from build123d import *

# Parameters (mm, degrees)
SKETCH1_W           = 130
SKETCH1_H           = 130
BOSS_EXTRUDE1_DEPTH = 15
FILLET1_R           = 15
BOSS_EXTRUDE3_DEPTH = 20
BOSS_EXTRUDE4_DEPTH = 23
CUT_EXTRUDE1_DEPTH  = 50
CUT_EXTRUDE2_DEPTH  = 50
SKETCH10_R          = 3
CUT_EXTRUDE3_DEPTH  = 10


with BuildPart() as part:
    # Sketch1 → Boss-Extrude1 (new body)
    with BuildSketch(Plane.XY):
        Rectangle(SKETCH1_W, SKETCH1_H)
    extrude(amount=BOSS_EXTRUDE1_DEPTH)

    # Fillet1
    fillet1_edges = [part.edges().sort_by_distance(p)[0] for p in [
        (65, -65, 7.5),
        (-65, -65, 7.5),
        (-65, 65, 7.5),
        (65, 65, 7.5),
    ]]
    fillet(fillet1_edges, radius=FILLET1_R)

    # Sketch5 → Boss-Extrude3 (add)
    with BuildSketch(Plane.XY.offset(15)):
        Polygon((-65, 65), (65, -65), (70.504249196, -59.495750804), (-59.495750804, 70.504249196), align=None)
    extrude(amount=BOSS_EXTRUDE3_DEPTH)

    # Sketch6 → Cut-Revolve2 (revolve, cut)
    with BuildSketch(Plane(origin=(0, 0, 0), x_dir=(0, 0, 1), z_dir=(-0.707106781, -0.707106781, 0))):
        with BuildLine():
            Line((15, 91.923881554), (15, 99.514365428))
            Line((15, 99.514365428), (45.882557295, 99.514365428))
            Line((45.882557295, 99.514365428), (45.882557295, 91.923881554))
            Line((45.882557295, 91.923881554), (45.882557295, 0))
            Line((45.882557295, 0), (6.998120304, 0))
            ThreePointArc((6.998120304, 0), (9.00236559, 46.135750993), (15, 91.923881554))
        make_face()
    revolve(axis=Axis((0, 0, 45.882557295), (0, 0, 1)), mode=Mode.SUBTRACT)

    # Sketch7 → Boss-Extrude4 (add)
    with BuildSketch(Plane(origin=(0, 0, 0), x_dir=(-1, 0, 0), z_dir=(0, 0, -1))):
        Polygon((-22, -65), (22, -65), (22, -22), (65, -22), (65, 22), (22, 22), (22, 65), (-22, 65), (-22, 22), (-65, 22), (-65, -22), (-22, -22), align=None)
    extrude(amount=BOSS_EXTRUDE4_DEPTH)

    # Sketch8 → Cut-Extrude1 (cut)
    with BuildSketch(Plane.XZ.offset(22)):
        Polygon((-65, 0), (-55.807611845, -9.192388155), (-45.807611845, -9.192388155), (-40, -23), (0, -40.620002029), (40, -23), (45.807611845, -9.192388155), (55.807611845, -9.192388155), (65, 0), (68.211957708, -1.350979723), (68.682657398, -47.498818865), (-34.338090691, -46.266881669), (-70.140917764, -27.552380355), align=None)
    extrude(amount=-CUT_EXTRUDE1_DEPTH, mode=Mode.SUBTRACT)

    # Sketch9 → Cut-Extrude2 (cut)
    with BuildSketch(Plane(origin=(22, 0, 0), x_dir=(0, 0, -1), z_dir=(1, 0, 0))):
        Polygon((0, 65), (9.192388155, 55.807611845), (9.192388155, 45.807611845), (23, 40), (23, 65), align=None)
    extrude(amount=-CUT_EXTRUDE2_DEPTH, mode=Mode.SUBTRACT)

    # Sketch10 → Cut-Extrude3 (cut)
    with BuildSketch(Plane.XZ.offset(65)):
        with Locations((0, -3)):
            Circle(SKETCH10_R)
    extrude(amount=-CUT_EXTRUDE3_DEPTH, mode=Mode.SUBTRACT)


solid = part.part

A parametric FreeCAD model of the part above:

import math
import FreeCAD as App
import Part
import Sketcher
Q = App.Units.Quantity


def edges_at(feature, points):
    """Names of the edges that pass closest to the given points."""
    edges = feature.Shape.Edges
    near = lambda p: min(range(len(edges)), key=lambda i: edges[i].distToShape(Part.Vertex(*p))[0])
    return sorted({f"Edge{near(p) + 1}" for p in points})

doc = App.newDocument("Part")
params = doc.addObject("Spreadsheet::Sheet", "Params")
for row, (alias, value) in enumerate([
    ("sketch1_width", "130 mm"),
    ("pad1_length", "15 mm"),
    ("fillet_radius", "15 mm"),
    ("pad2_length", "20 mm"),
    ("groove_angle", "360 deg"),
    ("sketch4_width", "44 mm"),
    ("sketch4_width2", "43 mm"),
    ("pad3_length", "23 mm"),
    ("sketch5_width", "10 mm"),
    ("sketch5_length", "13 mm"),
    ("pocket1_length", "50 mm"),
    ("sketch6_width", "10 mm"),
    ("sketch6_width2", "25 mm"),
    ("sketch6_height", "23 mm"),
    ("sketch6_length", "13 mm"),
    ("pocket2_length", "50 mm"),
    ("sketch7_diameter", "6 mm"),
    ("pocket3_length", "10 mm"),
], start=1):
    params.set(f"A{row}", alias)
    params.set(f"B{row}", "=" + value)
    params.setAlias(f"B{row}", alias)

body = doc.addObject("PartDesign::Body", "Body")

# Sketch on XY plane
sketch1 = doc.addObject("Sketcher::SketchObject", "Sketch")
body.addObject(sketch1)
sketch1.AttachmentSupport = (doc.XY_Plane, [""])
sketch1.MapMode = "FlatFace"
sketch1.addGeometry([
    Part.LineSegment(App.Vector(-65, 65, 0), App.Vector(-65, -65, 0)),
    Part.LineSegment(App.Vector(-65, -65, 0), App.Vector(65, -65, 0)),
    Part.LineSegment(App.Vector(65, -65, 0), App.Vector(65, 65, 0)),
    Part.LineSegment(App.Vector(65, 65, 0), App.Vector(-65, 65, 0)),
], False)
sketch1.addConstraint([
    Sketcher.Constraint("Coincident", 0, 2, 1, 1),
    Sketcher.Constraint("Coincident", 1, 2, 2, 1),
    Sketcher.Constraint("Coincident", 2, 2, 3, 1),
    Sketcher.Constraint("Coincident", 3, 2, 0, 1),
    Sketcher.Constraint("Vertical", 0),
    Sketcher.Constraint("Horizontal", 1),
    Sketcher.Constraint("Vertical", 2),
    Sketcher.Constraint("Horizontal", 3),
    Sketcher.Constraint("Symmetric", 0, 2, 2, 2, -1, 1),
    Sketcher.Constraint("Equal", 3, 0),
    Sketcher.Constraint("DistanceX", 1, 1, 1, 2, Q("130 mm")),
])
sketch1.setExpression("Constraints[10]", "Params.sketch1_width")
pad1 = doc.addObject("PartDesign::Pad", "Pad")
body.addObject(pad1)
pad1.Profile = sketch1
pad1.setExpression("Length", "Params.pad1_length")
doc.recompute()

fillet = doc.addObject("PartDesign::Fillet", "Fillet")
body.addObject(fillet)
fillet.Base = (pad1, edges_at(pad1, [
    (65, -65, 7.5),
    (-65, -65, 7.5),
    (-65, 65, 7.5),
    (65, 65, 7.5),
]))
fillet.setExpression("Radius", "Params.fillet_radius")

# Sketch on XY plane
sketch2 = doc.addObject("Sketcher::SketchObject", "Sketch001")
body.addObject(sketch2)
sketch2.AttachmentSupport = (doc.XY_Plane, [""])
sketch2.MapMode = "FlatFace"
sketch2.AttachmentOffset = App.Placement(App.Vector(0, 0, 15), App.Rotation())
sketch2.addGeometry([
    Part.LineSegment(App.Vector(-65, 65, 0), App.Vector(65, -65, 0)),
    Part.LineSegment(App.Vector(65, -65, 0), App.Vector(71, -59, 0)),
    Part.LineSegment(App.Vector(71, -59, 0), App.Vector(-59, 71, 0)),
    Part.LineSegment(App.Vector(-59, 71, 0), App.Vector(-65, 65, 0)),
], False)
sketch2.addConstraint([
    Sketcher.Constraint("Coincident", 0, 2, 1, 1),
    Sketcher.Constraint("Coincident", 1, 2, 2, 1),
    Sketcher.Constraint("Coincident", 2, 2, 3, 1),
    Sketcher.Constraint("Coincident", 3, 2, 0, 1),
    Sketcher.Constraint("Symmetric", 0, 2, 3, 2, -1, 1),
    Sketcher.Constraint("Perpendicular", 0, 1),
    Sketcher.Constraint("Perpendicular", 1, 2),
    Sketcher.Constraint("Perpendicular", 2, 3),
    Sketcher.Constraint("Angle", 0, Q("-45 deg")),
    Sketcher.Constraint("DistanceX", -1, 1, 0, 2, Q("65 mm")),
    Sketcher.Constraint("DistanceX", -1, 1, 1, 2, Q("70.504249 mm")),
])
pad2 = doc.addObject("PartDesign::Pad", "Pad001")
body.addObject(pad2)
pad2.Profile = sketch2
pad2.setExpression("Length", "Params.pad2_length")

# Sketch on an angled plane
sketch3 = doc.addObject("Sketcher::SketchObject", "Sketch002")
body.addObject(sketch3)
sketch3.Placement = App.Placement(App.Vector(0, 0, 0), App.Rotation(App.Vector(0, 0, 1), App.Vector(-0.707106781, 0.707106781, 0), App.Vector(-0.707106781, -0.707106781, 0), "ZXY"))
sketch3.addGeometry([
    Part.LineSegment(App.Vector(15, 100, 0), App.Vector(15, 92, 0)),  # 0
    Part.ArcOfCircle(Part.Circle(App.Vector(539, 0, 0), App.Vector(0, 0, 1), 532), math.radians(170.05), math.radians(180)),  # 1
    Part.LineSegment(App.Vector(7, 0, 0), App.Vector(46, 0, 0)),  # 2
    Part.LineSegment(App.Vector(46, 0, 0), App.Vector(46, 100, 0)),  # 3
    Part.LineSegment(App.Vector(46, 100, 0), App.Vector(15, 100, 0)),  # 4
], False)
sketch3.addConstraint([
    Sketcher.Constraint("Coincident", 0, 2, 1, 1),
    Sketcher.Constraint("Coincident", 1, 2, 2, 1),
    Sketcher.Constraint("Coincident", 2, 2, 3, 1),
    Sketcher.Constraint("Coincident", 3, 2, 4, 1),
    Sketcher.Constraint("Coincident", 4, 2, 0, 1),
    Sketcher.Constraint("Vertical", 0),
    Sketcher.Constraint("Horizontal", 2),
    Sketcher.Constraint("Vertical", 3),
    Sketcher.Constraint("Horizontal", 4),
    Sketcher.Constraint("PointOnObject", 1, 3, -1),
    Sketcher.Constraint("PointOnObject", 2, 2, -1),
    Sketcher.Constraint("DistanceX", -1, 1, 1, 3, Q("539 mm")),
    Sketcher.Constraint("DistanceX", -1, 1, 0, 2, Q("15 mm")),
    Sketcher.Constraint("Radius", 1, Q("532.00188 mm")),
    Sketcher.Constraint("DistanceX", 2, 1, 2, 2, Q("38.884437 mm")),
    Sketcher.Constraint("DistanceY", 0, 2, 0, 1, Q("7.590484 mm")),
])
groove = doc.addObject("PartDesign::Groove", "Groove")
body.addObject(groove)
groove.Profile = sketch3
groove.ReferenceAxis = (sketch3, ["H_Axis"])
groove.setExpression("Angle", "Params.groove_angle")

# Sketch on XY plane
sketch4 = doc.addObject("Sketcher::SketchObject", "Sketch003")
body.addObject(sketch4)
sketch4.AttachmentSupport = (doc.XY_Plane, [""])
sketch4.MapMode = "FlatFace"
sketch4.addGeometry([
    Part.LineSegment(App.Vector(22, -65, 0), App.Vector(-22, -65, 0)),  # 0
    Part.LineSegment(App.Vector(-22, -65, 0), App.Vector(-22, -22, 0)),  # 1
    Part.LineSegment(App.Vector(-22, -22, 0), App.Vector(-65, -22, 0)),  # 2
    Part.LineSegment(App.Vector(-65, -22, 0), App.Vector(-65, 22, 0)),  # 3
    Part.LineSegment(App.Vector(-65, 22, 0), App.Vector(-22, 22, 0)),  # 4
    Part.LineSegment(App.Vector(-22, 22, 0), App.Vector(-22, 65, 0)),  # 5
    Part.LineSegment(App.Vector(-22, 65, 0), App.Vector(22, 65, 0)),  # 6
    Part.LineSegment(App.Vector(22, 65, 0), App.Vector(22, 22, 0)),  # 7
    Part.LineSegment(App.Vector(22, 22, 0), App.Vector(65, 22, 0)),  # 8
    Part.LineSegment(App.Vector(65, 22, 0), App.Vector(65, -22, 0)),  # 9
    Part.LineSegment(App.Vector(65, -22, 0), App.Vector(22, -22, 0)),  # 10
    Part.LineSegment(App.Vector(22, -22, 0), App.Vector(22, -65, 0)),  # 11
], False)
sketch4.addConstraint([
    Sketcher.Constraint("Coincident", 0, 2, 1, 1),
    Sketcher.Constraint("Coincident", 1, 2, 2, 1),
    Sketcher.Constraint("Coincident", 2, 2, 3, 1),
    Sketcher.Constraint("Coincident", 3, 2, 4, 1),
    Sketcher.Constraint("Coincident", 4, 2, 5, 1),
    Sketcher.Constraint("Coincident", 5, 2, 6, 1),
    Sketcher.Constraint("Coincident", 6, 2, 7, 1),
    Sketcher.Constraint("Coincident", 7, 2, 8, 1),
    Sketcher.Constraint("Coincident", 8, 2, 9, 1),
    Sketcher.Constraint("Coincident", 9, 2, 10, 1),
    Sketcher.Constraint("Coincident", 10, 2, 11, 1),
    Sketcher.Constraint("Coincident", 11, 2, 0, 1),
    Sketcher.Constraint("Horizontal", 0),
    Sketcher.Constraint("Vertical", 1),
    Sketcher.Constraint("Horizontal", 2),
    Sketcher.Constraint("Vertical", 3),
    Sketcher.Constraint("Horizontal", 4),
    Sketcher.Constraint("Vertical", 5),
    Sketcher.Constraint("Horizontal", 6),
    Sketcher.Constraint("Vertical", 7),
    Sketcher.Constraint("Horizontal", 8),
    Sketcher.Constraint("Vertical", 9),
    Sketcher.Constraint("Horizontal", 10),
    Sketcher.Constraint("Vertical", 11),
    Sketcher.Constraint("Symmetric", 0, 2, 6, 2, -1, 1),
    Sketcher.Constraint("Symmetric", 2, 2, 8, 2, -1, 1),
    Sketcher.Constraint("Symmetric", 4, 2, 10, 2, -1, 1),
    Sketcher.Constraint("Symmetric", 4, 2, 7, 2, -2),
    Sketcher.Constraint("Equal", 10, 1),
    Sketcher.Constraint("Equal", 6, 3),
    Sketcher.Constraint("DistanceX", 0, 2, 0, 1, Q("44 mm")),
    Sketcher.Constraint("DistanceX", 2, 2, 2, 1, Q("43 mm")),
])
sketch4.setExpression("Constraints[30]", "Params.sketch4_width")
sketch4.setExpression("Constraints[31]", "Params.sketch4_width2")
pad3 = doc.addObject("PartDesign::Pad", "Pad002")
body.addObject(pad3)
pad3.Profile = sketch4
pad3.setExpression("Length", "Params.pad3_length")
pad3.Reversed = True

# Sketch on XZ plane
sketch5 = doc.addObject("Sketcher::SketchObject", "Sketch004")
body.addObject(sketch5)
sketch5.AttachmentSupport = (doc.XZ_Plane, [""])
sketch5.MapMode = "FlatFace"
sketch5.AttachmentOffset = App.Placement(App.Vector(0, 0, 22), App.Rotation())
sketch5.addGeometry([
    Part.LineSegment(App.Vector(-55.8, -9.2, 0), App.Vector(-65, 0, 0)),  # 0
    Part.LineSegment(App.Vector(-65, 0, 0), App.Vector(-70.1, -27.6, 0)),  # 1
    Part.LineSegment(App.Vector(-70.1, -27.6, 0), App.Vector(-34.3, -46.3, 0)),  # 2
    Part.LineSegment(App.Vector(-34.3, -46.3, 0), App.Vector(68.7, -47.5, 0)),  # 3
    Part.LineSegment(App.Vector(68.7, -47.5, 0), App.Vector(68.2, -1.4, 0)),  # 4
    Part.LineSegment(App.Vector(68.2, -1.4, 0), App.Vector(65, 0, 0)),  # 5
    Part.LineSegment(App.Vector(65, 0, 0), App.Vector(55.8, -9.2, 0)),  # 6
    Part.LineSegment(App.Vector(55.8, -9.2, 0), App.Vector(45.8, -9.2, 0)),  # 7
    Part.LineSegment(App.Vector(45.8, -9.2, 0), App.Vector(40, -23, 0)),  # 8
    Part.LineSegment(App.Vector(40, -23, 0), App.Vector(0, -40.6, 0)),  # 9
    Part.LineSegment(App.Vector(0, -40.6, 0), App.Vector(-40, -23, 0)),  # 10
    Part.LineSegment(App.Vector(-40, -23, 0), App.Vector(-45.8, -9.2, 0)),  # 11
    Part.LineSegment(App.Vector(-45.8, -9.2, 0), App.Vector(-55.8, -9.2, 0)),  # 12
], False)
sketch5.addConstraint([
    Sketcher.Constraint("Coincident", 0, 2, 1, 1),
    Sketcher.Constraint("Coincident", 1, 2, 2, 1),
    Sketcher.Constraint("Coincident", 2, 2, 3, 1),
    Sketcher.Constraint("Coincident", 3, 2, 4, 1),
    Sketcher.Constraint("Coincident", 4, 2, 5, 1),
    Sketcher.Constraint("Coincident", 5, 2, 6, 1),
    Sketcher.Constraint("Coincident", 6, 2, 7, 1),
    Sketcher.Constraint("Coincident", 7, 2, 8, 1),
    Sketcher.Constraint("Coincident", 8, 2, 9, 1),
    Sketcher.Constraint("Coincident", 9, 2, 10, 1),
    Sketcher.Constraint("Coincident", 10, 2, 11, 1),
    Sketcher.Constraint("Coincident", 11, 2, 12, 1),
    Sketcher.Constraint("Coincident", 12, 2, 0, 1),
    Sketcher.Constraint("Horizontal", 7),
    Sketcher.Constraint("Horizontal", 12),
    Sketcher.Constraint("Symmetric", 0, 2, 5, 2, -1, 1),
    Sketcher.Constraint("Symmetric", 8, 2, 10, 2, -2),
    Sketcher.Constraint("Symmetric", 7, 2, 11, 2, -2),
    Sketcher.Constraint("PointOnObject", 0, 2, -1),
    Sketcher.Constraint("PointOnObject", 9, 2, -2),
    Sketcher.Constraint("Perpendicular", 0, 6),
    Sketcher.Constraint("Perpendicular", 5, 8),
    Sketcher.Constraint("Equal", 7, 12),
    Sketcher.Constraint("DistanceX", 7, 2, 7, 1, Q("10 mm")),
    Sketcher.Constraint("Distance", 0, Q("13 mm")),
    Sketcher.Constraint("DistanceX", 0, 2, -1, 1, Q("65 mm")),
    Sketcher.Constraint("DistanceX", -1, 1, 8, 2, Q("40 mm")),
    Sketcher.Constraint("DistanceY", 8, 2, -1, 1, Q("23 mm")),
    Sketcher.Constraint("DistanceY", 2, 2, 1, 2, Q("18.714501 mm")),
    Sketcher.Constraint("DistanceX", 4, 2, 3, 2, Q("0.4707 mm")),
    Sketcher.Constraint("DistanceY", 2, 2, 4, 2, Q("44.915902 mm")),
    Sketcher.Constraint("Distance", 1, Q("28.027891 mm")),
    Sketcher.Constraint("Distance", 4, Q("46.15024 mm")),
    Sketcher.Constraint("Distance", 5, Q("3.484511 mm")),
    Sketcher.Constraint("Distance", 9, Q("43.70886 mm")),
    Sketcher.Constraint("DistanceX", 2, 2, -1, 1, Q("34.338091 mm")),
])
sketch5.setExpression("Constraints[23]", "Params.sketch5_width")
sketch5.setExpression("Constraints[24]", "Params.sketch5_length")
pocket1 = doc.addObject("PartDesign::Pocket", "Pocket")
body.addObject(pocket1)
pocket1.Profile = sketch5
pocket1.setExpression("Length", "Params.pocket1_length")

# Sketch on YZ plane
sketch6 = doc.addObject("Sketcher::SketchObject", "Sketch005")
body.addObject(sketch6)
sketch6.AttachmentSupport = (doc.YZ_Plane, [""])
sketch6.MapMode = "FlatFace"
sketch6.AttachmentOffset = App.Placement(App.Vector(0, 0, 22), App.Rotation())
sketch6.addGeometry([
    Part.LineSegment(App.Vector(65, 0, 0), App.Vector(56, -9, 0)),  # 0
    Part.LineSegment(App.Vector(56, -9, 0), App.Vector(46, -9, 0)),  # 1
    Part.LineSegment(App.Vector(46, -9, 0), App.Vector(40, -23, 0)),  # 2
    Part.LineSegment(App.Vector(40, -23, 0), App.Vector(65, -23, 0)),  # 3
    Part.LineSegment(App.Vector(65, -23, 0), App.Vector(65, 0, 0)),  # 4
], False)
sketch6.addConstraint([
    Sketcher.Constraint("Coincident", 0, 2, 1, 1),
    Sketcher.Constraint("Coincident", 1, 2, 2, 1),
    Sketcher.Constraint("Coincident", 2, 2, 3, 1),
    Sketcher.Constraint("Coincident", 3, 2, 4, 1),
    Sketcher.Constraint("Coincident", 4, 2, 0, 1),
    Sketcher.Constraint("Horizontal", 1),
    Sketcher.Constraint("Horizontal", 3),
    Sketcher.Constraint("Vertical", 4),
    Sketcher.Constraint("PointOnObject", 4, 2, -1),
    Sketcher.Constraint("DistanceX", 1, 2, 1, 1, Q("10 mm")),
    Sketcher.Constraint("DistanceX", 3, 1, 3, 2, Q("25 mm")),
    Sketcher.Constraint("DistanceY", 4, 1, 4, 2, Q("23 mm")),
    Sketcher.Constraint("Angle", 0, Q("-135 deg")),
    Sketcher.Constraint("Distance", 0, Q("13 mm")),
    Sketcher.Constraint("DistanceX", -1, 1, 2, 2, Q("40 mm")),
])
sketch6.setExpression("Constraints[9]", "Params.sketch6_width")
sketch6.setExpression("Constraints[10]", "Params.sketch6_width2")
sketch6.setExpression("Constraints[11]", "Params.sketch6_height")
sketch6.setExpression("Constraints[13]", "Params.sketch6_length")
pocket2 = doc.addObject("PartDesign::Pocket", "Pocket001")
body.addObject(pocket2)
pocket2.Profile = sketch6
pocket2.setExpression("Length", "Params.pocket2_length")

# Sketch on XZ plane
sketch7 = doc.addObject("Sketcher::SketchObject", "Sketch006")
body.addObject(sketch7)
sketch7.AttachmentSupport = (doc.XZ_Plane, [""])
sketch7.MapMode = "FlatFace"
sketch7.AttachmentOffset = App.Placement(App.Vector(0, 0, 65), App.Rotation())
sketch7.addGeometry(Part.Circle(App.Vector(0, -3, 0), App.Vector(0, 0, 1), 3), False)
sketch7.addConstraint([
    Sketcher.Constraint("PointOnObject", 0, 3, -2),
    Sketcher.Constraint("Diameter", 0, Q("6 mm")),
    Sketcher.Constraint("DistanceY", 0, 3, -1, 1, Q("3 mm")),
])
sketch7.setExpression("Constraints[1]", "Params.sketch7_diameter")
pocket3 = doc.addObject("PartDesign::Pocket", "Pocket002")
body.addObject(pocket3)
pocket3.Profile = sketch7
pocket3.setExpression("Length", "Params.pocket3_length")

doc.recompute()
